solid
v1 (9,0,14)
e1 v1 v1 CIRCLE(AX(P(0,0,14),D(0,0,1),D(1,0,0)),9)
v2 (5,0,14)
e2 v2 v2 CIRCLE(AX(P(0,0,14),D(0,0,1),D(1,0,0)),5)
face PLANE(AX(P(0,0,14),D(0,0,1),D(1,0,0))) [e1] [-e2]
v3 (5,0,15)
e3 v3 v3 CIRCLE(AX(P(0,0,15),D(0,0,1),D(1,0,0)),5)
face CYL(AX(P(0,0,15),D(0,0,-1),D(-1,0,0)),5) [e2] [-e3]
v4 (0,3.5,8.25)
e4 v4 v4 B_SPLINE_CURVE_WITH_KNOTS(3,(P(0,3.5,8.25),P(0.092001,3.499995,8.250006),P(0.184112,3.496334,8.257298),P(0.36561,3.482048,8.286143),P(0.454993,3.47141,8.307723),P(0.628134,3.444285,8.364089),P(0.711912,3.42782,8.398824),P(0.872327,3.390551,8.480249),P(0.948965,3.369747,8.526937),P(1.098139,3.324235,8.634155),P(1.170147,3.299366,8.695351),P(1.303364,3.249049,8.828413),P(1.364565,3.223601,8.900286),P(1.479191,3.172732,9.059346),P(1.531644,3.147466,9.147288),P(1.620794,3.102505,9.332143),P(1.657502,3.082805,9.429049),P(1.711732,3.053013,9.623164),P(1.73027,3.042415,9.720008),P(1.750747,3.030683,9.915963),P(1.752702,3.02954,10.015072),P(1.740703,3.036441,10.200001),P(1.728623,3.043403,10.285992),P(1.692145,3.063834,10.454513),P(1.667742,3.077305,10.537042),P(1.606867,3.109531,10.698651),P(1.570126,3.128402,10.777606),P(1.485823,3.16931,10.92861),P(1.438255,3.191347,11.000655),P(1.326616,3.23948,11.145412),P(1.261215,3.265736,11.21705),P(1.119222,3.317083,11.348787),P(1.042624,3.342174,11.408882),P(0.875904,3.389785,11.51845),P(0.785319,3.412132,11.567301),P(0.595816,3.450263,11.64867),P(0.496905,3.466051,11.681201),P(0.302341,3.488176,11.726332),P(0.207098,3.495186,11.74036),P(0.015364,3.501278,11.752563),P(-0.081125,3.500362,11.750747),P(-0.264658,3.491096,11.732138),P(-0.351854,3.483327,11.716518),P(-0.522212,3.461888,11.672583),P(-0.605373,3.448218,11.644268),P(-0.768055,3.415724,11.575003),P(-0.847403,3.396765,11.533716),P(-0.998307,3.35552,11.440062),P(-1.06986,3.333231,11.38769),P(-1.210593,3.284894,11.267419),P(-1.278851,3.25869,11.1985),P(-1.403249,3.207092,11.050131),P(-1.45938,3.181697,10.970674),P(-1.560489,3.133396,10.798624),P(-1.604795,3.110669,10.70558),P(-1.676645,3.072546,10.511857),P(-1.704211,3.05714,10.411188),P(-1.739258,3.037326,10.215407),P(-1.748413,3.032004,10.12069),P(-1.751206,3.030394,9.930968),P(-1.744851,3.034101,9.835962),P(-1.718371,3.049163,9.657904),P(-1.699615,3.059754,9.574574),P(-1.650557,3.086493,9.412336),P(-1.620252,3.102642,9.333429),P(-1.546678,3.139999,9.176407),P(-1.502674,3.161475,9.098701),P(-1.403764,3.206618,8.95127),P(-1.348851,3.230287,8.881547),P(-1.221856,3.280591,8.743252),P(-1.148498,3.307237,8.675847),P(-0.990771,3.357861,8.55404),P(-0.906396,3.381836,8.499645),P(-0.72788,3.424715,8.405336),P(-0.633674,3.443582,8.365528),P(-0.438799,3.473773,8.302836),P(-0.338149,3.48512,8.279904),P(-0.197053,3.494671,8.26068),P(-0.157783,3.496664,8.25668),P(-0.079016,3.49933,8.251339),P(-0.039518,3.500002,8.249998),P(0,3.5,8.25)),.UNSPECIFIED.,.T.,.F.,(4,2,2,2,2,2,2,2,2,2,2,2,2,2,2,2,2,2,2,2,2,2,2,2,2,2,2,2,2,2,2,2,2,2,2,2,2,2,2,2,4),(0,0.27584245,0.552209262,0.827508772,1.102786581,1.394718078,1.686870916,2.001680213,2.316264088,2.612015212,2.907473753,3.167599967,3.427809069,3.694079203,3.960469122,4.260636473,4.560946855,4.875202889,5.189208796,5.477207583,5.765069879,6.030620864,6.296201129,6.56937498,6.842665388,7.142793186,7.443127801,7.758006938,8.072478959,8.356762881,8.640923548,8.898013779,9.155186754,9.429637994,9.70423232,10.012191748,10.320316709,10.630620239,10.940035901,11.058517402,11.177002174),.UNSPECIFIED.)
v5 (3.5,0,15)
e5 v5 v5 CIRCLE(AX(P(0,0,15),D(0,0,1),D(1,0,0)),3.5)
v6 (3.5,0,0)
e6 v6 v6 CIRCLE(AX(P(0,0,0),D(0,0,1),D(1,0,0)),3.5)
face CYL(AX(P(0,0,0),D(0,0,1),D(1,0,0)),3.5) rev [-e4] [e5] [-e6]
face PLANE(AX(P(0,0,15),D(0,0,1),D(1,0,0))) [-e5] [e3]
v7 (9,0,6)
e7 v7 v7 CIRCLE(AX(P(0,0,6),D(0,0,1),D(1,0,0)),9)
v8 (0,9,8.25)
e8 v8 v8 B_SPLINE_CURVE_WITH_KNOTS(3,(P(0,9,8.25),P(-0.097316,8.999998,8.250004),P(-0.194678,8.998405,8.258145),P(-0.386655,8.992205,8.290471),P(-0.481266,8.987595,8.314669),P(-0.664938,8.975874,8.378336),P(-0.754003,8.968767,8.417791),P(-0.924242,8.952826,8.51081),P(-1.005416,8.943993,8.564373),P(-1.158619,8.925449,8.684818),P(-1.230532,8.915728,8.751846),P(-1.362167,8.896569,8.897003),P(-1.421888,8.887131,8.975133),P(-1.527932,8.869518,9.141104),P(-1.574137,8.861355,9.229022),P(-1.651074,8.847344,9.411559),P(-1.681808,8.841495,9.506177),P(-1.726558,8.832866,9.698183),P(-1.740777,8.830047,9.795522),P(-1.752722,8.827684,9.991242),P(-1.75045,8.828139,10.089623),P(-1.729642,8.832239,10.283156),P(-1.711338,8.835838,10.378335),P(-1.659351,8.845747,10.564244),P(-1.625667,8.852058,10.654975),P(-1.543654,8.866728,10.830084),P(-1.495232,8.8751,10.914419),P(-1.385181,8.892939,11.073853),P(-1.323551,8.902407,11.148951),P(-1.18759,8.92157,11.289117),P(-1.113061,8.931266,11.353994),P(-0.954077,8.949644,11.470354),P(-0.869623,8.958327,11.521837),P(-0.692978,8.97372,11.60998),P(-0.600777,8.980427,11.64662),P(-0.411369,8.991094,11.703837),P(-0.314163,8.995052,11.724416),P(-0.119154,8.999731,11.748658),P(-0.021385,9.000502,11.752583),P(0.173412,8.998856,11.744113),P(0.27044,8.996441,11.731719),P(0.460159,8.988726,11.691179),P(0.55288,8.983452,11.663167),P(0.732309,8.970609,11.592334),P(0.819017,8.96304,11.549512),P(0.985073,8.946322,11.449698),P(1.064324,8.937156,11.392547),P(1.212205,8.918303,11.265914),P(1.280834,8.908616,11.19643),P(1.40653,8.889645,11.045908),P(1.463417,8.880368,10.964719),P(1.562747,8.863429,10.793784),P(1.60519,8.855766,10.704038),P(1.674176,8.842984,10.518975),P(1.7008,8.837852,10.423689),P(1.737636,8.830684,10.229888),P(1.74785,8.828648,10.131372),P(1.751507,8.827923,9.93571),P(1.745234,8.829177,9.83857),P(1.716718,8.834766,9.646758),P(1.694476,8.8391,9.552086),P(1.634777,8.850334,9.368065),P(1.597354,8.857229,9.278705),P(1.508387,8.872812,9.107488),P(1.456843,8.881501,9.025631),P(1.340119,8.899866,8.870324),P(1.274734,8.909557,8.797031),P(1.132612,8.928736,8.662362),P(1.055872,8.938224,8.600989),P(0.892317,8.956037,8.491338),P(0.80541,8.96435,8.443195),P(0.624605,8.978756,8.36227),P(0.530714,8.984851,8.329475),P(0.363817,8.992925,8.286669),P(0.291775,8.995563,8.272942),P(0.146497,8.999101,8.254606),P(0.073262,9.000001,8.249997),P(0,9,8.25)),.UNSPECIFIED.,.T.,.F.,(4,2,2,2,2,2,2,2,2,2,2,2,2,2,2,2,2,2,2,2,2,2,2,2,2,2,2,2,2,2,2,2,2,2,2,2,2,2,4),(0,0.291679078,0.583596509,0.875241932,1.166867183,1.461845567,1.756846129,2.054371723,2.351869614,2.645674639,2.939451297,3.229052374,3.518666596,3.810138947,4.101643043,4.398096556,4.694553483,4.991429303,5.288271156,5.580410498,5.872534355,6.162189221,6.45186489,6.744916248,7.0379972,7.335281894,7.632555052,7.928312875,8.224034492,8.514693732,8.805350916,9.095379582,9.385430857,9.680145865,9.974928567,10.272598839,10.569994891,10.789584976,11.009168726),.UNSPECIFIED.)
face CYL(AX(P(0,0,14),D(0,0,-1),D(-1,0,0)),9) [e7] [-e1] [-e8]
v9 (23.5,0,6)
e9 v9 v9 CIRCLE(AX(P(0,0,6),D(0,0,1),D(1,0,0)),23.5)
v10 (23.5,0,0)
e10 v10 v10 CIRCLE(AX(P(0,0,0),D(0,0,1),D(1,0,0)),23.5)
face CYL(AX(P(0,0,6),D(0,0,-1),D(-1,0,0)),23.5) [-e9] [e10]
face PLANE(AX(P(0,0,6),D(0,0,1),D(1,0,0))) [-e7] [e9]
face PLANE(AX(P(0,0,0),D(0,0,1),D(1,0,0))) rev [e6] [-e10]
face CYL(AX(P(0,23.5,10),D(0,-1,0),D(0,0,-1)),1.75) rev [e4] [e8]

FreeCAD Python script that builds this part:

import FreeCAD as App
import Part
import Sketcher
Q = App.Units.Quantity

doc = App.newDocument("Part")
params = doc.addObject("Spreadsheet::Sheet", "Params")
for row, (alias, value) in enumerate([
    ("sketch1_diameter", "47 mm"),
    ("pad1_length", "6 mm"),
    ("sketch2_diameter", "18 mm"),
    ("pad2_length", "8 mm"),
    ("sketch3_diameter", "7 mm"),
    ("sketch4_diameter", "3.5 mm"),
    ("sketch5_diameter", "10 mm"),
    ("sketch5_diameter2", "7 mm"),
    ("pad3_length", "1 mm"),
], start=1):
    params.set(f"A{row}", alias)
    params.set(f"B{row}", "=" + value)
    params.setAlias(f"B{row}", alias)

body = doc.addObject("PartDesign::Body", "Body")

sketch1 = doc.addObject("Sketcher::SketchObject", "Sketch")
body.addObject(sketch1)
sketch1.AttachmentSupport = (doc.XY_Plane, [""])
sketch1.MapMode = "FlatFace"
sketch1.addGeometry(Part.Circle(App.Vector(0, 0, 0), App.Vector(0, 0, 1), 23.5), False)
sketch1.addConstraint([
    Sketcher.Constraint("Coincident", 0, 3, -1, 1),
    Sketcher.Constraint("Diameter", 0, Q("47 mm")),
])
sketch1.setExpression("Constraints[1]", "Params.sketch1_diameter")
pad1 = doc.addObject("PartDesign::Pad", "Pad")
body.addObject(pad1)
pad1.Profile = sketch1
pad1.setExpression("Length", "Params.pad1_length")

sketch2 = doc.addObject("Sketcher::SketchObject", "Sketch001")
body.addObject(sketch2)
sketch2.AttachmentSupport = (doc.XY_Plane, [""])
sketch2.MapMode = "FlatFace"
sketch2.AttachmentOffset = App.Placement(App.Vector(0, 0, 6), App.Rotation())
sketch2.addGeometry(Part.Circle(App.Vector(0, 0, 0), App.Vector(0, 0, 1), 9), False)
sketch2.addConstraint([
    Sketcher.Constraint("Coincident", 0, 3, -1, 1),
    Sketcher.Constraint("Diameter", 0, Q("18 mm")),
])
sketch2.setExpression("Constraints[1]", "Params.sketch2_diameter")
pad2 = doc.addObject("PartDesign::Pad", "Pad001")
body.addObject(pad2)
pad2.Profile = sketch2
pad2.setExpression("Length", "Params.pad2_length")

sketch3 = doc.addObject("Sketcher::SketchObject", "Sketch002")
body.addObject(sketch3)
sketch3.AttachmentSupport = (doc.XY_Plane, [""])
sketch3.MapMode = "FlatFace"
sketch3.AttachmentOffset = App.Placement(App.Vector(0, 0, 14), App.Rotation())
sketch3.addGeometry(Part.Circle(App.Vector(0, 0, 0), App.Vector(0, 0, 1), 3.5), False)
sketch3.addConstraint([
    Sketcher.Constraint("Coincident", 0, 3, -1, 1),
    Sketcher.Constraint("Diameter", 0, Q("7 mm")),
])
sketch3.setExpression("Constraints[1]", "Params.sketch3_diameter")
pocket1 = doc.addObject("PartDesign::Pocket", "Pocket")
body.addObject(pocket1)
pocket1.Profile = sketch3
pocket1.Type = "ThroughAll"

sketch4 = doc.addObject("Sketcher::SketchObject", "Sketch003")
body.addObject(sketch4)
sketch4.AttachmentSupport = (doc.XZ_Plane, [""])
sketch4.MapMode = "FlatFace"
sketch4.addGeometry(Part.Circle(App.Vector(0, 10, 0), App.Vector(0, 0, 1), 1.75), False)
sketch4.addConstraint([
    Sketcher.Constraint("PointOnObject", 0, 3, -2),
    Sketcher.Constraint("Diameter", 0, Q("3.5 mm")),
    Sketcher.Constraint("DistanceY", -1, 1, 0, 3, Q("10 mm")),
])
sketch4.setExpression("Constraints[1]", "Params.sketch4_diameter")
pocket2 = doc.addObject("PartDesign::Pocket", "Pocket001")
body.addObject(pocket2)
pocket2.Profile = sketch4
pocket2.Type = "ThroughAll"

sketch5 = doc.addObject("Sketcher::SketchObject", "Sketch004")
body.addObject(sketch5)
sketch5.AttachmentSupport = (doc.XY_Plane, [""])
sketch5.MapMode = "FlatFace"
sketch5.AttachmentOffset = App.Placement(App.Vector(0, 0, 15), App.Rotation())
sketch5.addGeometry([
    Part.Circle(App.Vector(0, 0, 0), App.Vector(0, 0, 1), 5),
    Part.Circle(App.Vector(0, 0, 0), App.Vector(0, 0, 1), 3.5),
], False)
sketch5.addConstraint([
    Sketcher.Constraint("Coincident", 0, 3, -1, 1),
    Sketcher.Constraint("Coincident", 1, 3, -1, 1),
    Sketcher.Constraint("Diameter", 0, Q("10 mm")),
    Sketcher.Constraint("Diameter", 1, Q("7 mm")),
])
sketch5.setExpression("Constraints[2]", "Params.sketch5_diameter")
sketch5.setExpression("Constraints[3]", "Params.sketch5_diameter2")
pad3 = doc.addObject("PartDesign::Pad", "Pad002")
body.addObject(pad3)
pad3.Profile = sketch5
pad3.setExpression("Length", "Params.pad3_length")
pad3.Reversed = True

doc.recompute()
